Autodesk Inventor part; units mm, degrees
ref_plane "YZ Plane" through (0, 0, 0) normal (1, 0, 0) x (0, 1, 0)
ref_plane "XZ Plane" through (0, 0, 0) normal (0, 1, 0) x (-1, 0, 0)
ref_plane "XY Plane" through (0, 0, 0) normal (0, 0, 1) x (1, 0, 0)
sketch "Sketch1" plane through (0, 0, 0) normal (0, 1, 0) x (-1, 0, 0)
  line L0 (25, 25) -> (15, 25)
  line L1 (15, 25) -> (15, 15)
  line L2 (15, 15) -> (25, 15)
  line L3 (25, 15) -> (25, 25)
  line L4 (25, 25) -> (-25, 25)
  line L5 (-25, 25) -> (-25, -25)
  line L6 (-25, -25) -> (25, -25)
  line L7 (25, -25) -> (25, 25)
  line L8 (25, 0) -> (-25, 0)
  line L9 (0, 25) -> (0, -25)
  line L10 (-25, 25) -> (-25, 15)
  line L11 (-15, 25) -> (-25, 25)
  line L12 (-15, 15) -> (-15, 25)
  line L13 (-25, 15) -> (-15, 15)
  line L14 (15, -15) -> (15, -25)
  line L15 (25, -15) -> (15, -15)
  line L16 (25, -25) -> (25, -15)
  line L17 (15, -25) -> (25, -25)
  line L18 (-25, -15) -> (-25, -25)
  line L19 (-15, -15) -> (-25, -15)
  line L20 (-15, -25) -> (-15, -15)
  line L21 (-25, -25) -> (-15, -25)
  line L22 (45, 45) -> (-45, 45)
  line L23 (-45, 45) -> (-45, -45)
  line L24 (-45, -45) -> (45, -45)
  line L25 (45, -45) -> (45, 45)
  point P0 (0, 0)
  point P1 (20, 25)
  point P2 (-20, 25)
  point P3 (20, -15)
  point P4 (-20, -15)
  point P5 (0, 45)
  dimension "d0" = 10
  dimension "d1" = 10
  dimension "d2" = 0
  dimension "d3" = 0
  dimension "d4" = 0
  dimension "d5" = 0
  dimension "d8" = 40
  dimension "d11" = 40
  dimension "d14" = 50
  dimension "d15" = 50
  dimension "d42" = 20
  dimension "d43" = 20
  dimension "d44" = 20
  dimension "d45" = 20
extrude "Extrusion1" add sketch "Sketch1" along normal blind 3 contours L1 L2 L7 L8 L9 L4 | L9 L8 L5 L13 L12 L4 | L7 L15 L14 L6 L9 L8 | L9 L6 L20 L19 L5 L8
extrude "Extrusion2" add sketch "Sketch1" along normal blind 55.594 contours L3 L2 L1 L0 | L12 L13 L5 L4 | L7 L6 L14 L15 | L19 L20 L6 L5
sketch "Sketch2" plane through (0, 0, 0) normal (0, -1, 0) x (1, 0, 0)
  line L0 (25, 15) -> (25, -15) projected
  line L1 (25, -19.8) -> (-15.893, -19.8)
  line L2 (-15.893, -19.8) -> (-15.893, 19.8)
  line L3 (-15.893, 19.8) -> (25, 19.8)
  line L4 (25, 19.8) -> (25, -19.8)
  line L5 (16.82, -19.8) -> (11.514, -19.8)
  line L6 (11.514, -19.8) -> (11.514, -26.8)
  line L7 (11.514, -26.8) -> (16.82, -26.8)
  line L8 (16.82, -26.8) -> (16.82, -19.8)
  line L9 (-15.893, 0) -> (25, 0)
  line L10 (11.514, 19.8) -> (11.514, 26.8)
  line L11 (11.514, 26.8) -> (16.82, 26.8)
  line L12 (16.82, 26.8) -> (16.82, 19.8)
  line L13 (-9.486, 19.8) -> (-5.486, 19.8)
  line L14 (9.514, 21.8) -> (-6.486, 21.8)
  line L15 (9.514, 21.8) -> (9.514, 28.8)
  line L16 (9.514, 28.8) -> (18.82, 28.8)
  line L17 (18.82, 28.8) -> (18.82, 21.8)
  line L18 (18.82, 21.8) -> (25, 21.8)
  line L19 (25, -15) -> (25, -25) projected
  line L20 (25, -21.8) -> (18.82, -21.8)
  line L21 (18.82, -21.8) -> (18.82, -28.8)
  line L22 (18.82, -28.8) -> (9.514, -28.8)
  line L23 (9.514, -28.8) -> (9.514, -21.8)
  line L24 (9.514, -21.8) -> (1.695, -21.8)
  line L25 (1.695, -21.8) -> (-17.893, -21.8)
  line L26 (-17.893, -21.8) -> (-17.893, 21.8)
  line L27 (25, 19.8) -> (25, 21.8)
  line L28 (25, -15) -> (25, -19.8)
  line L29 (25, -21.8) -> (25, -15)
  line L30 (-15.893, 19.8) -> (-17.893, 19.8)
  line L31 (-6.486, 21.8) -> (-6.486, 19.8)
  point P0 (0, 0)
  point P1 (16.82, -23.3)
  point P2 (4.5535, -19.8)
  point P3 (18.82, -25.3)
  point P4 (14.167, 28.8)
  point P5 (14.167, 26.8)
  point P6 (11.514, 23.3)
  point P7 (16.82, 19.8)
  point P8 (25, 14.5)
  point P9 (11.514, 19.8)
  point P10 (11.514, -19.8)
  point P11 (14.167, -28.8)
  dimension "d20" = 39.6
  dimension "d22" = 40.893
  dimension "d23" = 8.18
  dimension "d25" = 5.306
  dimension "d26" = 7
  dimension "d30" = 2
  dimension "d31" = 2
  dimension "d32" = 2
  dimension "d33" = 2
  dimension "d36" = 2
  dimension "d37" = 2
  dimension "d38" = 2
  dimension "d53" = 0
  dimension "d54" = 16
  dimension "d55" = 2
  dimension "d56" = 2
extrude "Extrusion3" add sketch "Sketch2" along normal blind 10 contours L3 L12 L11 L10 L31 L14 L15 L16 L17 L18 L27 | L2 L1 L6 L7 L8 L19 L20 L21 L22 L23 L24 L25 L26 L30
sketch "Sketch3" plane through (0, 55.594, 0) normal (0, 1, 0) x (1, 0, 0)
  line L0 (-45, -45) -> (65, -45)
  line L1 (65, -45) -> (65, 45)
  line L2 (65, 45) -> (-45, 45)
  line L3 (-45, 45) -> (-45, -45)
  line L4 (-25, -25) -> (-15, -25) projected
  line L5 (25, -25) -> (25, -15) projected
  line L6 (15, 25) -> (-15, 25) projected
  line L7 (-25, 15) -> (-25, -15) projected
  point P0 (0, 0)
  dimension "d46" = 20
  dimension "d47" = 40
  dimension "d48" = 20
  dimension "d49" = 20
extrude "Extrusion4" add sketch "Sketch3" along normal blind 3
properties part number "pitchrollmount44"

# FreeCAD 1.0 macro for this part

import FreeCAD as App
import Part
import Sketcher

V = App.Vector

doc = App.newDocument("Part")
params = doc.addObject("Spreadsheet::Sheet", "Params")
for row, (alias, value) in enumerate([
    ("sketch1_width", "10 mm"),
    ("pad1_length", "3 mm"),
    ("sketch2_width", "10 mm"),
    ("pad2_length", "55.594 mm"),
    ("sketch3_width", "16 mm"),
    ("sketch3_width2", "2 mm"),
    ("sketch3_height", "7 mm"),
    ("sketch3_height2", "39.6 mm"),
    ("sketch3_width3", "8.18 mm"),
    ("pad3_length", "10 mm"),
    ("sketch4_width", "110 mm"),
    ("sketch4_height", "90 mm"),
    ("pad4_length", "3 mm"),
], start=1):
    params.set(f"A{row}", alias)
    params.set(f"B{row}", "=" + value)
    params.setAlias(f"B{row}", alias)

body = doc.addObject("PartDesign::Body", "Body")

sketch1 = body.newObject("Sketcher::SketchObject", "Sketch")
sketch1.AttachmentSupport = (doc.getObject("XZ_Plane"), [""])
sketch1.MapMode = "FlatFace"
sketch1.addGeometry(Part.LineSegment(V(-15, 15, 0), V(-15, 25, 0)), False)
sketch1.addGeometry(Part.LineSegment(V(-15, 25, 0), V(15, 25, 0)), False)
sketch1.addGeometry(Part.LineSegment(V(15, 25, 0), V(15, 15, 0)), False)
sketch1.addGeometry(Part.LineSegment(V(15, 15, 0), V(25, 15, 0)), False)
sketch1.addGeometry(Part.LineSegment(V(25, 15, 0), V(25, -15, 0)), False)
sketch1.addGeometry(Part.LineSegment(V(25, -15, 0), V(15, -15, 0)), False)
sketch1.addGeometry(Part.LineSegment(V(15, -15, 0), V(15, -25, 0)), False)
sketch1.addGeometry(Part.LineSegment(V(15, -25, 0), V(-15, -25, 0)), False)
sketch1.addGeometry(Part.LineSegment(V(-15, -25, 0), V(-15, -15, 0)), False)
sketch1.addGeometry(Part.LineSegment(V(-15, -15, 0), V(-25, -15, 0)), False)
sketch1.addGeometry(Part.LineSegment(V(-25, -15, 0), V(-25, 15, 0)), False)
sketch1.addGeometry(Part.LineSegment(V(-25, 15, 0), V(-15, 15, 0)), False)
sketch1.addConstraint(Sketcher.Constraint("Coincident", 0, 2, 1, 1))
sketch1.addConstraint(Sketcher.Constraint("Coincident", 1, 2, 2, 1))
sketch1.addConstraint(Sketcher.Constraint("Coincident", 2, 2, 3, 1))
sketch1.addConstraint(Sketcher.Constraint("Coincident", 3, 2, 4, 1))
sketch1.addConstraint(Sketcher.Constraint("Coincident", 4, 2, 5, 1))
sketch1.addConstraint(Sketcher.Constraint("Coincident", 5, 2, 6, 1))
sketch1.addConstraint(Sketcher.Constraint("Coincident", 6, 2, 7, 1))
sketch1.addConstraint(Sketcher.Constraint("Coincident", 7, 2, 8, 1))
sketch1.addConstraint(Sketcher.Constraint("Coincident", 8, 2, 9, 1))
sketch1.addConstraint(Sketcher.Constraint("Coincident", 9, 2, 10, 1))
sketch1.addConstraint(Sketcher.Constraint("Coincident", 10, 2, 11, 1))
sketch1.addConstraint(Sketcher.Constraint("Coincident", 11, 2, 0, 1))
sketch1.addConstraint(Sketcher.Constraint("Vertical", 0))
sketch1.addConstraint(Sketcher.Constraint("Horizontal", 1))
sketch1.addConstraint(Sketcher.Constraint("Vertical", 2))
sketch1.addConstraint(Sketcher.Constraint("Horizontal", 3))
sketch1.addConstraint(Sketcher.Constraint("Vertical", 4))
sketch1.addConstraint(Sketcher.Constraint("Horizontal", 5))
sketch1.addConstraint(Sketcher.Constraint("Vertical", 6))
sketch1.addConstraint(Sketcher.Constraint("Horizontal", 7))
sketch1.addConstraint(Sketcher.Constraint("Vertical", 8))
sketch1.addConstraint(Sketcher.Constraint("Horizontal", 9))
sketch1.addConstraint(Sketcher.Constraint("Vertical", 10))
sketch1.addConstraint(Sketcher.Constraint("Horizontal", 11))
sketch1.addConstraint(Sketcher.Constraint("Symmetric", 0, 2, 6, 2, -1, 1))
sketch1.addConstraint(Sketcher.Constraint("Symmetric", 2, 2, 8, 2, -1, 1))
sketch1.addConstraint(Sketcher.Constraint("Symmetric", 4, 2, 10, 2, -1, 1))
sketch1.addConstraint(Sketcher.Constraint("Symmetric", 5, 2, 8, 2, -2))
sketch1.addConstraint(Sketcher.Constraint("Equal", 11, 0))
sketch1.addConstraint(Sketcher.Constraint("Equal", 7, 4))
sketch1.addConstraint(Sketcher.Constraint("DistanceX", 3, 1, 3, 2, 10.0))
sketch1.addConstraint(Sketcher.Constraint("DistanceX", 0, 2, 3, 2, 40.0))
sketch1.setExpression("Constraints[30]", "Params.sketch1_width")
pad1 = body.newObject("PartDesign::Pad", "Pad")
pad1.Profile = sketch1
pad1.setExpression("Length", "Params.pad1_length")
pad1.Reversed = True

sketch2 = body.newObject("Sketcher::SketchObject", "Sketch001")
sketch2.AttachmentSupport = (doc.getObject("XZ_Plane"), [""])
sketch2.MapMode = "FlatFace"
sketch2.addGeometry(Part.LineSegment(V(-25, 15, 0), V(-25, 25, 0)), False)
sketch2.addGeometry(Part.LineSegment(V(-25, 25, 0), V(-15, 25, 0)), False)
sketch2.addGeometry(Part.LineSegment(V(-15, 25, 0), V(-15, 15, 0)), False)
sketch2.addGeometry(Part.LineSegment(V(-15, 15, 0), V(-25, 15, 0)), False)
sketch2.addGeometry(Part.LineSegment(V(15, 15, 0), V(15, 25, 0)), False)
sketch2.addGeometry(Part.LineSegment(V(15, 25, 0), V(25, 25, 0)), False)
sketch2.addGeometry(Part.LineSegment(V(25, 25, 0), V(25, 15, 0)), False)
sketch2.addGeometry(Part.LineSegment(V(25, 15, 0), V(15, 15, 0)), False)
sketch2.addGeometry(Part.LineSegment(V(-25, -25, 0), V(-25, -15, 0)), False)
sketch2.addGeometry(Part.LineSegment(V(-25, -15, 0), V(-15, -15, 0)), False)
sketch2.addGeometry(Part.LineSegment(V(-15, -15, 0), V(-15, -25, 0)), False)
sketch2.addGeometry(Part.LineSegment(V(-15, -25, 0), V(-25, -25, 0)), False)
sketch2.addGeometry(Part.LineSegment(V(15, -15, 0), V(25, -15, 0)), False)
sketch2.addGeometry(Part.LineSegment(V(25, -15, 0), V(25, -25, 0)), False)
sketch2.addGeometry(Part.LineSegment(V(25, -25, 0), V(15, -25, 0)), False)
sketch2.addGeometry(Part.LineSegment(V(15, -25, 0), V(15, -15, 0)), False)
sketch2.addConstraint(Sketcher.Constraint("Coincident", 0, 2, 1, 1))
sketch2.addConstraint(Sketcher.Constraint("Coincident", 1, 2, 2, 1))
sketch2.addConstraint(Sketcher.Constraint("Coincident", 2, 2, 3, 1))
sketch2.addConstraint(Sketcher.Constraint("Coincident", 3, 2, 0, 1))
sketch2.addConstraint(Sketcher.Constraint("Coincident", 4, 2, 5, 1))
sketch2.addConstraint(Sketcher.Constraint("Coincident", 5, 2, 6, 1))
sketch2.addConstraint(Sketcher.Constraint("Coincident", 6, 2, 7, 1))
sketch2.addConstraint(Sketcher.Constraint("Coincident", 7, 2, 4, 1))
sketch2.addConstraint(Sketcher.Constraint("Coincident", 8, 2, 9, 1))
sketch2.addConstraint(Sketcher.Constraint("Coincident", 9, 2, 10, 1))
sketch2.addConstraint(Sketcher.Constraint("Coincident", 10, 2, 11, 1))
sketch2.addConstraint(Sketcher.Constraint("Coincident", 11, 2, 8, 1))
sketch2.addConstraint(Sketcher.Constraint("Coincident", 12, 2, 13, 1))
sketch2.addConstraint(Sketcher.Constraint("Coincident", 13, 2, 14, 1))
sketch2.addConstraint(Sketcher.Constraint("Coincident", 14, 2, 15, 1))
sketch2.addConstraint(Sketcher.Constraint("Coincident", 15, 2, 12, 1))
sketch2.addConstraint(Sketcher.Constraint("Vertical", 0))
sketch2.addConstraint(Sketcher.Constraint("Horizontal", 1))
sketch2.addConstraint(Sketcher.Constraint("Vertical", 2))
sketch2.addConstraint(Sketcher.Constraint("Horizontal", 3))
sketch2.addConstraint(Sketcher.Constraint("Vertical", 4))
sketch2.addConstraint(Sketcher.Constraint("Horizontal", 5))
sketch2.addConstraint(Sketcher.Constraint("Vertical", 6))
sketch2.addConstraint(Sketcher.Constraint("Horizontal", 7))
sketch2.addConstraint(Sketcher.Constraint("Vertical", 8))
sketch2.addConstraint(Sketcher.Constraint("Horizontal", 9))
sketch2.addConstraint(Sketcher.Constraint("Vertical", 10))
sketch2.addConstraint(Sketcher.Constraint("Horizontal", 11))
sketch2.addConstraint(Sketcher.Constraint("Horizontal", 12))
sketch2.addConstraint(Sketcher.Constraint("Vertical", 13))
sketch2.addConstraint(Sketcher.Constraint("Horizontal", 14))
sketch2.addConstraint(Sketcher.Constraint("Vertical", 15))
sketch2.addConstraint(Sketcher.Constraint("Symmetric", 6, 2, 8, 2, -1, 1))
sketch2.addConstraint(Sketcher.Constraint("Symmetric", 4, 2, 10, 2, -1, 1))
sketch2.addConstraint(Sketcher.Constraint("Symmetric", 3, 2, 12, 2, -1, 1))
sketch2.addConstraint(Sketcher.Constraint("Symmetric", 1, 2, 14, 2, -1, 1))
sketch2.addConstraint(Sketcher.Constraint("Symmetric", 1, 2, 4, 2, -2))
sketch2.addConstraint(Sketcher.Constraint("Symmetric", 3, 2, 6, 2, -2))
sketch2.addConstraint(Sketcher.Constraint("Equal", 14, 0))
sketch2.addConstraint(Sketcher.Constraint("DistanceX", 1, 1, 1, 2, 10.0))
sketch2.addConstraint(Sketcher.Constraint("DistanceX", 0, 2, 4, 2, 40.0))
sketch2.addConstraint(Sketcher.Constraint("DistanceY", 8, 2, 0, 2, 40.0))
sketch2.setExpression("Constraints[39]", "Params.sketch2_width")
pad2 = body.newObject("PartDesign::Pad", "Pad001")
pad2.Profile = sketch2
pad2.setExpression("Length", "Params.pad2_length")
pad2.Reversed = True

sketch3 = body.newObject("Sketcher::SketchObject", "Sketch002")
sketch3.AttachmentSupport = (doc.getObject("XZ_Plane"), [""])
sketch3.MapMode = "FlatFace"
sketch3.addGeometry(Part.LineSegment(V(16.82, 19.8, 0), V(25, 19.8, 0)), False)
sketch3.addGeometry(Part.LineSegment(V(25, 19.8, 0), V(25, 21.8, 0)), False)
sketch3.addGeometry(Part.LineSegment(V(25, 21.8, 0), V(18.82, 21.8, 0)), False)
sketch3.addGeometry(Part.LineSegment(V(18.82, 21.8, 0), V(18.82, 28.8, 0)), False)
sketch3.addGeometry(Part.LineSegment(V(18.82, 28.8, 0), V(9.514, 28.8, 0)), False)
sketch3.addGeometry(Part.LineSegment(V(9.514, 28.8, 0), V(9.514, 21.8, 0)), False)
sketch3.addGeometry(Part.LineSegment(V(9.514, 21.8, 0), V(-6.486, 21.8, 0)), False)
sketch3.addGeometry(Part.LineSegment(V(-6.486, 21.8, 0), V(-6.486, 19.8, 0)), False)
sketch3.addGeometry(Part.LineSegment(V(-6.486, 19.8, 0), V(11.514, 19.8, 0)), False)
sketch3.addGeometry(Part.LineSegment(V(11.514, 19.8, 0), V(11.514, 26.8, 0)), False)
sketch3.addGeometry(Part.LineSegment(V(11.514, 26.8, 0), V(16.82, 26.8, 0)), False)
sketch3.addGeometry(Part.LineSegment(V(16.82, 26.8, 0), V(16.82, 19.8, 0)), False)
sketch3.addGeometry(Part.LineSegment(V(-15.893, -19.8, 0), V(-15.893, 19.8, 0)), False)
sketch3.addGeometry(Part.LineSegment(V(-15.893, 19.8, 0), V(-17.893, 19.8, 0)), False)
sketch3.addGeometry(Part.LineSegment(V(-17.893, 19.8, 0), V(-17.893, -21.8, 0)), False)
sketch3.addGeometry(Part.LineSegment(V(-17.893, -21.8, 0), V(9.514, -21.8, 0)), False)
sketch3.addGeometry(Part.LineSegment(V(9.514, -21.8, 0), V(9.514, -28.8, 0)), False)
sketch3.addGeometry(Part.LineSegment(V(9.514, -28.8, 0), V(18.82, -28.8, 0)), False)
sketch3.addGeometry(Part.LineSegment(V(18.82, -28.8, 0), V(18.82, -21.8, 0)), False)
sketch3.addGeometry(Part.LineSegment(V(18.82, -21.8, 0), V(25, -21.8, 0)), False)
sketch3.addGeometry(Part.LineSegment(V(25, -21.8, 0), V(25, -19.8, 0)), False)
sketch3.addGeometry(Part.LineSegment(V(25, -19.8, 0), V(16.82, -19.8, 0)), False)
sketch3.addGeometry(Part.LineSegment(V(16.82, -19.8, 0), V(16.82, -26.8, 0)), False)
sketch3.addGeometry(Part.LineSegment(V(16.82, -26.8, 0), V(11.514, -26.8, 0)), False)
sketch3.addGeometry(Part.LineSegment(V(11.514, -26.8, 0), V(11.514, -19.8, 0)), False)
sketch3.addGeometry(Part.LineSegment(V(11.514, -19.8, 0), V(-15.893, -19.8, 0)), False)
sketch3.addConstraint(Sketcher.Constraint("Coincident", 0, 2, 1, 1))
sketch3.addConstraint(Sketcher.Constraint("Coincident", 1, 2, 2, 1))
sketch3.addConstraint(Sketcher.Constraint("Coincident", 2, 2, 3, 1))
sketch3.addConstraint(Sketcher.Constraint("Coincident", 3, 2, 4, 1))
sketch3.addConstraint(Sketcher.Constraint("Coincident", 4, 2, 5, 1))
sketch3.addConstraint(Sketcher.Constraint("Coincident", 5, 2, 6, 1))
sketch3.addConstraint(Sketcher.Constraint("Coincident", 6, 2, 7, 1))
sketch3.addConstraint(Sketcher.Constraint("Coincident", 7, 2, 8, 1))
sketch3.addConstraint(Sketcher.Constraint("Coincident", 8, 2, 9, 1))
sketch3.addConstraint(Sketcher.Constraint("Coincident", 9, 2, 10, 1))
sketch3.addConstraint(Sketcher.Constraint("Coincident", 10, 2, 11, 1))
sketch3.addConstraint(Sketcher.Constraint("Coincident", 11, 2, 0, 1))
sketch3.addConstraint(Sketcher.Constraint("Coincident", 12, 2, 13, 1))
sketch3.addConstraint(Sketcher.Constraint("Coincident", 13, 2, 14, 1))
sketch3.addConstraint(Sketcher.Constraint("Coincident", 14, 2, 15, 1))
sketch3.addConstraint(Sketcher.Constraint("Coincident", 15, 2, 16, 1))
sketch3.addConstraint(Sketcher.Constraint("Coincident", 16, 2, 17, 1))
sketch3.addConstraint(Sketcher.Constraint("Coincident", 17, 2, 18, 1))
sketch3.addConstraint(Sketcher.Constraint("Coincident", 18, 2, 19, 1))
sketch3.addConstraint(Sketcher.Constraint("Coincident", 19, 2, 20, 1))
sketch3.addConstraint(Sketcher.Constraint("Coincident", 20, 2, 21, 1))
sketch3.addConstraint(Sketcher.Constraint("Coincident", 21, 2, 22, 1))
sketch3.addConstraint(Sketcher.Constraint("Coincident", 22, 2, 23, 1))
sketch3.addConstraint(Sketcher.Constraint("Coincident", 23, 2, 24, 1))
sketch3.addConstraint(Sketcher.Constraint("Coincident", 24, 2, 25, 1))
sketch3.addConstraint(Sketcher.Constraint("Coincident", 25, 2, 12, 1))
sketch3.addConstraint(Sketcher.Constraint("Horizontal", 0))
sketch3.addConstraint(Sketcher.Constraint("Vertical", 1))
sketch3.addConstraint(Sketcher.Constraint("Horizontal", 2))
sketch3.addConstraint(Sketcher.Constraint("Vertical", 3))
sketch3.addConstraint(Sketcher.Constraint("Horizontal", 4))
sketch3.addConstraint(Sketcher.Constraint("Vertical", 5))
sketch3.addConstraint(Sketcher.Constraint("Horizontal", 6))
sketch3.addConstraint(Sketcher.Constraint("Vertical", 7))
sketch3.addConstraint(Sketcher.Constraint("Horizontal", 8))
sketch3.addConstraint(Sketcher.Constraint("Vertical", 9))
sketch3.addConstraint(Sketcher.Constraint("Horizontal", 10))
sketch3.addConstraint(Sketcher.Constraint("Vertical", 11))
sketch3.addConstraint(Sketcher.Constraint("Vertical", 12))
sketch3.addConstraint(Sketcher.Constraint("Horizontal", 13))
sketch3.addConstraint(Sketcher.Constraint("Vertical", 14))
sketch3.addConstraint(Sketcher.Constraint("Horizontal", 15))
sketch3.addConstraint(Sketcher.Constraint("Vertical", 16))
sketch3.addConstraint(Sketcher.Constraint("Horizontal", 17))
sketch3.addConstraint(Sketcher.Constraint("Vertical", 18))
sketch3.addConstraint(Sketcher.Constraint("Horizontal", 19))
sketch3.addConstraint(Sketcher.Constraint("Vertical", 20))
sketch3.addConstraint(Sketcher.Constraint("Horizontal", 21))
sketch3.addConstraint(Sketcher.Constraint("Vertical", 22))
sketch3.addConstraint(Sketcher.Constraint("Horizontal", 23))
sketch3.addConstraint(Sketcher.Constraint("Vertical", 24))
sketch3.addConstraint(Sketcher.Constraint("Horizontal", 25))
sketch3.addConstraint(Sketcher.Constraint("Symmetric", 5, 2, 15, 2, -1))
sketch3.addConstraint(Sketcher.Constraint("Symmetric", 3, 2, 17, 2, -1))
sketch3.addConstraint(Sketcher.Constraint("Symmetric", 1, 2, 19, 2, -1))
sketch3.addConstraint(Sketcher.Constraint("Symmetric", 11, 2, 21, 2, -1))
sketch3.addConstraint(Sketcher.Constraint("Symmetric", 9, 2, 23, 2, -1))
sketch3.addConstraint(Sketcher.Constraint("Horizontal", 2, 2, 5, 2))
sketch3.addConstraint(Sketcher.Constraint("Horizontal", 0, 2, 7, 2))
sketch3.addConstraint(Sketcher.Constraint("Horizontal", 11, 2, 12, 2))
sketch3.addConstraint(Sketcher.Constraint("Horizontal", 21, 2, 24, 2))
sketch3.addConstraint(Sketcher.Constraint("Equal", 15, 25))
sketch3.addConstraint(Sketcher.Constraint("Equal", 13, 1))
sketch3.addConstraint(Sketcher.Constraint("Equal", 5, 9))
sketch3.addConstraint(Sketcher.Constraint("DistanceX", 6, 2, 6, 1, 16.0))
sketch3.addConstraint(Sketcher.Constraint("DistanceX", 13, 2, 13, 1, 2.0))
sketch3.addConstraint(Sketcher.Constraint("DistanceY", 3, 1, 3, 2, 7.0))
sketch3.addConstraint(Sketcher.Constraint("DistanceY", 12, 1, 12, 2, 39.6))
sketch3.addConstraint(Sketcher.Constraint("DistanceX", 10, 2, 3, 2, 2.0))
sketch3.addConstraint(Sketcher.Constraint("DistanceX", 0, 1, 0, 2, 8.18))
sketch3.addConstraint(Sketcher.Constraint("DistanceX", 10, 1, 10, 2, 5.306))
sketch3.addConstraint(Sketcher.Constraint("DistanceX", -1, 1, 0, 2, 25.0))
sketch3.addConstraint(Sketcher.Constraint("DistanceX", 15, 1, 15, 2, 27.407))
sketch3.setExpression("Constraints[64]", "Params.sketch3_width")
sketch3.setExpression("Constraints[65]", "Params.sketch3_width2")
sketch3.setExpression("Constraints[66]", "Params.sketch3_height")
sketch3.setExpression("Constraints[67]", "Params.sketch3_height2")
sketch3.setExpression("Constraints[69]", "Params.sketch3_width3")
pad3 = body.newObject("PartDesign::Pad", "Pad002")
pad3.Profile = sketch3
pad3.setExpression("Length", "Params.pad3_length")

sketch4 = body.newObject("Sketcher::SketchObject", "Sketch003")
sketch4.AttachmentSupport = (doc.getObject("XZ_Plane"), [""])
sketch4.MapMode = "FlatFace"
sketch4.AttachmentOffset = App.Placement(V(0, 0, -55.594), App.Rotation())
sketch4.addGeometry(Part.LineSegment(V(-45, -45, 0), V(-45, 45, 0)), False)
sketch4.addGeometry(Part.LineSegment(V(-45, 45, 0), V(65, 45, 0)), False)
sketch4.addGeometry(Part.LineSegment(V(65, 45, 0), V(65, -45, 0)), False)
sketch4.addGeometry(Part.LineSegment(V(65, -45, 0), V(-45, -45, 0)), False)
sketch4.addConstraint(Sketcher.Constraint("Coincident", 0, 2, 1, 1))
sketch4.addConstraint(Sketcher.Constraint("Coincident", 1, 2, 2, 1))
sketch4.addConstraint(Sketcher.Constraint("Coincident", 2, 2, 3, 1))
sketch4.addConstraint(Sketcher.Constraint("Coincident", 3, 2, 0, 1))
sketch4.addConstraint(Sketcher.Constraint("Vertical", 0))
sketch4.addConstraint(Sketcher.Constraint("Horizontal", 1))
sketch4.addConstraint(Sketcher.Constraint("Vertical", 2))
sketch4.addConstraint(Sketcher.Constraint("Horizontal", 3))
sketch4.addConstraint(Sketcher.Constraint("DistanceX", 1, 1, 1, 2, 110.0))
sketch4.addConstraint(Sketcher.Constraint("DistanceY", 0, 1, 0, 2, 90.0))
sketch4.addConstraint(Sketcher.Constraint("DistanceX", 0, 2, -1, 1, 45.0))
sketch4.addConstraint(Sketcher.Constraint("DistanceY", -1, 1, 0, 2, 45.0))
sketch4.setExpression("Constraints[8]", "Params.sketch4_width")
sketch4.setExpression("Constraints[9]", "Params.sketch4_height")
pad4 = body.newObject("PartDesign::Pad", "Pad003")
pad4.Profile = sketch4
pad4.setExpression("Length", "Params.pad4_length")
pad4.Reversed = True

doc.recompute()
